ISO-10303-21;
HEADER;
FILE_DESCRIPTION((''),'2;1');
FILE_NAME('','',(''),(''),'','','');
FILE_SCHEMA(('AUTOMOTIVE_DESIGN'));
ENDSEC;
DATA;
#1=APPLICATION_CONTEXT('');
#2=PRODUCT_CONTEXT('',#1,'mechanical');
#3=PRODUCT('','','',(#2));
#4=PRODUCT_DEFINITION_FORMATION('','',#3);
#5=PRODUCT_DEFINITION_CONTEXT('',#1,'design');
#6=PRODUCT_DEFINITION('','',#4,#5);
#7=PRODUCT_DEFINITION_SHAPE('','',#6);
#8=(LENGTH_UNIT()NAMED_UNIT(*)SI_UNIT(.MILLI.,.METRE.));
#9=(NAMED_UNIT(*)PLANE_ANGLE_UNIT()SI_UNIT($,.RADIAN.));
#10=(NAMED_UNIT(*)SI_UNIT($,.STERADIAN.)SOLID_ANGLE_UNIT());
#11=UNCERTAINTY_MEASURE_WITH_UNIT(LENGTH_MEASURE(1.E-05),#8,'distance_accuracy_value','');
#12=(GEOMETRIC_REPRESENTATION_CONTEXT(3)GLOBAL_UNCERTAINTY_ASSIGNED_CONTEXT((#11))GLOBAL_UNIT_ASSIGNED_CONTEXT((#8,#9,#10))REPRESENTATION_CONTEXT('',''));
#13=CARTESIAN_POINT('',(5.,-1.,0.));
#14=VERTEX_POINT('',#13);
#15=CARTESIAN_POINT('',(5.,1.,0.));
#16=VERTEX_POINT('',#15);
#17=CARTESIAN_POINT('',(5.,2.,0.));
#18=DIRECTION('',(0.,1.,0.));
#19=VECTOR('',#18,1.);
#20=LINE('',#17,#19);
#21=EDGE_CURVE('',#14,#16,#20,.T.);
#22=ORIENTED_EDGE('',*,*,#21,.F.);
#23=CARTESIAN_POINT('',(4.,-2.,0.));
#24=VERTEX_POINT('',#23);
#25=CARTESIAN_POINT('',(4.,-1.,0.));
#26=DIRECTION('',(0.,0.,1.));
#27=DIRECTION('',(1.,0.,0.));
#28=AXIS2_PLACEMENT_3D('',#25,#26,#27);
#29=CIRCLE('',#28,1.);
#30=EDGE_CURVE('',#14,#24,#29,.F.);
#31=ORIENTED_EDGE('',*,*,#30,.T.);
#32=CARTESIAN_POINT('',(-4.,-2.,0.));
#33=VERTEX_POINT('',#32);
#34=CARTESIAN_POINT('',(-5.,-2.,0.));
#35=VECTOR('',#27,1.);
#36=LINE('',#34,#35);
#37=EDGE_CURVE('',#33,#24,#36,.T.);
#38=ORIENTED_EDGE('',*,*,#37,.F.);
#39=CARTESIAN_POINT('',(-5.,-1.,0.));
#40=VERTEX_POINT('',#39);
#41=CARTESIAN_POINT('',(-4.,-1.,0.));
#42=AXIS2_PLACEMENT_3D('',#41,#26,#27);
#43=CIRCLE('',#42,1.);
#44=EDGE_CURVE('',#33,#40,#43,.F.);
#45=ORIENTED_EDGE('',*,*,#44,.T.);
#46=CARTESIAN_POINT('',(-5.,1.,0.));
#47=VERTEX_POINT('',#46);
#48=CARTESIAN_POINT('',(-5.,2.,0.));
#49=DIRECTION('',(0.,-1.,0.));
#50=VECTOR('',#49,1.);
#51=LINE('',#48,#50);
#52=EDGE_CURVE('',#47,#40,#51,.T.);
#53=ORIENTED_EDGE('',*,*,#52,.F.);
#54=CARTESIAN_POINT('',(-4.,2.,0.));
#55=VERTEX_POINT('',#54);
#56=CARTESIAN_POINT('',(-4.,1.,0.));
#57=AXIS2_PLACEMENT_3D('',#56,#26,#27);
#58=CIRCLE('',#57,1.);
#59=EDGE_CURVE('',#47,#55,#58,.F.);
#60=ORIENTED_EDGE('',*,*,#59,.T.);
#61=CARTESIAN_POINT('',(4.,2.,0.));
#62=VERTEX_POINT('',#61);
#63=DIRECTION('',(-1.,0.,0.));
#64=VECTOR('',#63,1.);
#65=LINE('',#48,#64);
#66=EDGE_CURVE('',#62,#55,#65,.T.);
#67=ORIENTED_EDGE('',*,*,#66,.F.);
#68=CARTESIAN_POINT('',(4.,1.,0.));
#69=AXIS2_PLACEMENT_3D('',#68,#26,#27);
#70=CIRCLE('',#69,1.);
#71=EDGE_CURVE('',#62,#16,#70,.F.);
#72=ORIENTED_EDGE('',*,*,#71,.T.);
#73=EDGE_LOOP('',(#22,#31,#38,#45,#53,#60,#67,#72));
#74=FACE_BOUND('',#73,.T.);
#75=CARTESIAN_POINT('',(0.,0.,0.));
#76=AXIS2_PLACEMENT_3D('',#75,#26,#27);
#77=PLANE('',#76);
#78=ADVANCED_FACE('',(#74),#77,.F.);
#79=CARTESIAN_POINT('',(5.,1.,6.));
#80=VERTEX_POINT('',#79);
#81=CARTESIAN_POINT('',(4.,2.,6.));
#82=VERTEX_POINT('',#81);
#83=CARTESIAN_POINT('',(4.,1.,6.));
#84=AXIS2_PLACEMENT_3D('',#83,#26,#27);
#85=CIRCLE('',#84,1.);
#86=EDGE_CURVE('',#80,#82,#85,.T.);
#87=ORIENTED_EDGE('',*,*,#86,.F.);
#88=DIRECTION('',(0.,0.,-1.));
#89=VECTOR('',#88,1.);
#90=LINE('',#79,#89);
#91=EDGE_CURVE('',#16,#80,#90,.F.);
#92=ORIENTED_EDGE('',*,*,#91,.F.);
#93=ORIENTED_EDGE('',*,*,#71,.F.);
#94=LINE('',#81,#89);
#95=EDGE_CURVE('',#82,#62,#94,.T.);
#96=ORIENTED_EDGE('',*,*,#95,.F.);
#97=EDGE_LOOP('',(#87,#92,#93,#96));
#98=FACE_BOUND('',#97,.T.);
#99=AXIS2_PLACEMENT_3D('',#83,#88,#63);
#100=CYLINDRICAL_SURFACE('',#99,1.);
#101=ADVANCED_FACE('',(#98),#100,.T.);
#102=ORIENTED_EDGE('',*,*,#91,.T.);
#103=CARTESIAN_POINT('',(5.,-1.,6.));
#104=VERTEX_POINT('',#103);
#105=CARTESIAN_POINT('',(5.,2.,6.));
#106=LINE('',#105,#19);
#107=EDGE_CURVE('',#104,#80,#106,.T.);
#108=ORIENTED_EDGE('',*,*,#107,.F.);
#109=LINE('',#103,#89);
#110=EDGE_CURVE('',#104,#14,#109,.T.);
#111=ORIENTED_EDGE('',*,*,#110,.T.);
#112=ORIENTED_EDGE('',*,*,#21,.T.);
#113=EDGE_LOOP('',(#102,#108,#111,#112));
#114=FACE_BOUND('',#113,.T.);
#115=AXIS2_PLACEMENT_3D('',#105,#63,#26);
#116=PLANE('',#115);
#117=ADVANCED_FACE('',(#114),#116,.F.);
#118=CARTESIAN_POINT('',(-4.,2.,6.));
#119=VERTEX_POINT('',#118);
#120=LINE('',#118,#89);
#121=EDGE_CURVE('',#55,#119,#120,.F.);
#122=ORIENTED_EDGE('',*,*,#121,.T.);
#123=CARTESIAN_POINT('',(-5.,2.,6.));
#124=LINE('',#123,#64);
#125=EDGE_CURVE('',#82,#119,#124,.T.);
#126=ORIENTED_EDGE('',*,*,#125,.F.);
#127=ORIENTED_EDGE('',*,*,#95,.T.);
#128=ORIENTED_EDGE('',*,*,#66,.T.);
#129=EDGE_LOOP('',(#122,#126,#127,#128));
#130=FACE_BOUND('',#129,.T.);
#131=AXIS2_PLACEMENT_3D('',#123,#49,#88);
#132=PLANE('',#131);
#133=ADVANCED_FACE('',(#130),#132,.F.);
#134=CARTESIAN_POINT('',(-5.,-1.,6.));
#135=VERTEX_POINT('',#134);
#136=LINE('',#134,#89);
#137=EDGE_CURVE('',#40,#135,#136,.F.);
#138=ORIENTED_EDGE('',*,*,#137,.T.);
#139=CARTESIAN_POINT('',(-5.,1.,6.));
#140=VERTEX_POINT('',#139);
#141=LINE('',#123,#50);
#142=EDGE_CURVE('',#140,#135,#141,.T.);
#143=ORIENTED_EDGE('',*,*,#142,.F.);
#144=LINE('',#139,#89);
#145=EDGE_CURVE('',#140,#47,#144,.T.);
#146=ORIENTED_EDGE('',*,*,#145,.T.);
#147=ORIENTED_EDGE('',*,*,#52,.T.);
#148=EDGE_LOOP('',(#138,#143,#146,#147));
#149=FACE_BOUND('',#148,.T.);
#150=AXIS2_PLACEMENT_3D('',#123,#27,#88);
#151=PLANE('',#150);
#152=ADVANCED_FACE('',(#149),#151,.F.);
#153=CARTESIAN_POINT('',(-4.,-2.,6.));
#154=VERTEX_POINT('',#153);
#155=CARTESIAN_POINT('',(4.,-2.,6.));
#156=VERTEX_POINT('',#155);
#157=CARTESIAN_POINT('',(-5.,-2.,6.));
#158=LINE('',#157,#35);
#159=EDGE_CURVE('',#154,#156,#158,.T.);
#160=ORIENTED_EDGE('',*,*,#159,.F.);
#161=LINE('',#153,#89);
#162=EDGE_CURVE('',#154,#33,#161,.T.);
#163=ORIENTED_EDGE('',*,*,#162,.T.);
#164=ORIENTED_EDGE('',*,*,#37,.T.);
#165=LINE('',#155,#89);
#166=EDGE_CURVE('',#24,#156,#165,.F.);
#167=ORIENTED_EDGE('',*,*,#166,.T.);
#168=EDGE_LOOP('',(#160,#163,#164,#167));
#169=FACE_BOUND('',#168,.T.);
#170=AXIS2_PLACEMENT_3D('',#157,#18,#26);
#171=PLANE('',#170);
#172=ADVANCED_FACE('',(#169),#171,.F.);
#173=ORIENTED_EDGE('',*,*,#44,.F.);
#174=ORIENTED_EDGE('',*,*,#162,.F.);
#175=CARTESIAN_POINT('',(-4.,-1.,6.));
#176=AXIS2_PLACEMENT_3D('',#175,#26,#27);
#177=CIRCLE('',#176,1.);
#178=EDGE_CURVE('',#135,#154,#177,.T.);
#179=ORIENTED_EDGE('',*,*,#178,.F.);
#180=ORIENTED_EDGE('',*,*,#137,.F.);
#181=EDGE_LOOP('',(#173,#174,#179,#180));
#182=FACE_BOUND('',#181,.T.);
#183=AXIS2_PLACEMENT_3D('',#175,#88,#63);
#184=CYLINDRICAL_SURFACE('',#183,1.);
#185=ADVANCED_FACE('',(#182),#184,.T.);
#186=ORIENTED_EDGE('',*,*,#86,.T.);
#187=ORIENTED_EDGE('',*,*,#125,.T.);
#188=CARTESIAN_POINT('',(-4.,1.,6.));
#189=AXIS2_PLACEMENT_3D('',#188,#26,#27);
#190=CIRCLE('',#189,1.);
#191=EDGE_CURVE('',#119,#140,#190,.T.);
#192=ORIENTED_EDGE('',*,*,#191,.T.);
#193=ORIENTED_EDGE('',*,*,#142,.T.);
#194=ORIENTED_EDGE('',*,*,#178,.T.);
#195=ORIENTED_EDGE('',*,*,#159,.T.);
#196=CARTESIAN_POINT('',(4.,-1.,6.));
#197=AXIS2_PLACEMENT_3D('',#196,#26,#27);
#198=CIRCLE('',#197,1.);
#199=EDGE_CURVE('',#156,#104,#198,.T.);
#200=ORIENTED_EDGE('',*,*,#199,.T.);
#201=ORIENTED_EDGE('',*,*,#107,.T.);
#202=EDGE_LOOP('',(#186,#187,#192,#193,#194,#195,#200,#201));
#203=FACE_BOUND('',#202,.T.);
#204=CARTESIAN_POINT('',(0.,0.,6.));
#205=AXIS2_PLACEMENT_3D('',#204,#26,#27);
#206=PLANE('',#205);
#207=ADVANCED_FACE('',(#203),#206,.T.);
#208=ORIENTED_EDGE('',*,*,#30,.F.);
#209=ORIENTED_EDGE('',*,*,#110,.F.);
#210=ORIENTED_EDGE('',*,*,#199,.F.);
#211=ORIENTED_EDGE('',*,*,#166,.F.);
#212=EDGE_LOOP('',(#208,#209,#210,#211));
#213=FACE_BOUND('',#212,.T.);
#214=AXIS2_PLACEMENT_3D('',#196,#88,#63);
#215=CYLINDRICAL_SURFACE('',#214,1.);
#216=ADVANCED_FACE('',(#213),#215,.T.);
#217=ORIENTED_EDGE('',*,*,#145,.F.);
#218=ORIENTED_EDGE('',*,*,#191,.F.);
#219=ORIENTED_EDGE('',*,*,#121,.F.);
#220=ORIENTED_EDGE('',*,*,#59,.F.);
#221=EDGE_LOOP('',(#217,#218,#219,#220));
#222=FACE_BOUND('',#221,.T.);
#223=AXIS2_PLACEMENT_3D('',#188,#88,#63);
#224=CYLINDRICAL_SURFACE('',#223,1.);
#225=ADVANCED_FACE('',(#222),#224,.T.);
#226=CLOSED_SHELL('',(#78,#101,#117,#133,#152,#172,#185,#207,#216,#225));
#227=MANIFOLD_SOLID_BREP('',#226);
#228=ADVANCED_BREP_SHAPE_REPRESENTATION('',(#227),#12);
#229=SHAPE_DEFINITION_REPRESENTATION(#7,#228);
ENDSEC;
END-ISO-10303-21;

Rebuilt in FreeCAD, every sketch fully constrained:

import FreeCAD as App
import Part
import Sketcher

V = App.Vector
Q = App.Units.Quantity


def edges_at(feature, points):
    """Names of the edges that pass closest to the given points."""
    edges = feature.Shape.Edges
    near = lambda p: min(range(len(edges)), key=lambda i: edges[i].distToShape(Part.Vertex(*p))[0])
    return sorted({f"Edge{near(p) + 1}" for p in points})

doc = App.newDocument("Part")
body = doc.addObject("PartDesign::Body", "Body")

sketch1 = body.newObject("Sketcher::SketchObject", "Sketch")
sketch1.AttachmentSupport = (doc.getObject("XY_Plane"), [""])
sketch1.MapMode = "FlatFace"
sketch1.addGeometry([
    Part.LineSegment(V(-5, 2, 0), V(-5, -2, 0)),
    Part.LineSegment(V(-5, -2, 0), V(5, -2, 0)),
    Part.LineSegment(V(5, -2, 0), V(5, 2, 0)),
    Part.LineSegment(V(5, 2, 0), V(-5, 2, 0)),
], False)
sketch1.addConstraint([
    Sketcher.Constraint("Coincident", 0, 2, 1, 1),
    Sketcher.Constraint("Coincident", 1, 2, 2, 1),
    Sketcher.Constraint("Coincident", 2, 2, 3, 1),
    Sketcher.Constraint("Coincident", 3, 2, 0, 1),
    Sketcher.Constraint("Vertical", 0),
    Sketcher.Constraint("Horizontal", 1),
    Sketcher.Constraint("Vertical", 2),
    Sketcher.Constraint("Horizontal", 3),
    Sketcher.Constraint("Symmetric", 0, 2, 2, 2, -1, 1),
    Sketcher.Constraint("DistanceX", 1, 1, 1, 2, Q("10 mm")),
    Sketcher.Constraint("DistanceY", 0, 2, 0, 1, Q("4 mm")),
])
pad1 = body.newObject("PartDesign::Pad", "Pad")
pad1.Profile = sketch1
pad1.Length = 6
doc.recompute()

fillet = body.newObject("PartDesign::Fillet", "Fillet")
fillet.Base = (pad1, edges_at(pad1, [
    (-5, 2, 3),
    (5, 2, 3),
    (5, -2, 3),
    (-5, -2, 3),
]))
fillet.Radius = 1

doc.recompute()
